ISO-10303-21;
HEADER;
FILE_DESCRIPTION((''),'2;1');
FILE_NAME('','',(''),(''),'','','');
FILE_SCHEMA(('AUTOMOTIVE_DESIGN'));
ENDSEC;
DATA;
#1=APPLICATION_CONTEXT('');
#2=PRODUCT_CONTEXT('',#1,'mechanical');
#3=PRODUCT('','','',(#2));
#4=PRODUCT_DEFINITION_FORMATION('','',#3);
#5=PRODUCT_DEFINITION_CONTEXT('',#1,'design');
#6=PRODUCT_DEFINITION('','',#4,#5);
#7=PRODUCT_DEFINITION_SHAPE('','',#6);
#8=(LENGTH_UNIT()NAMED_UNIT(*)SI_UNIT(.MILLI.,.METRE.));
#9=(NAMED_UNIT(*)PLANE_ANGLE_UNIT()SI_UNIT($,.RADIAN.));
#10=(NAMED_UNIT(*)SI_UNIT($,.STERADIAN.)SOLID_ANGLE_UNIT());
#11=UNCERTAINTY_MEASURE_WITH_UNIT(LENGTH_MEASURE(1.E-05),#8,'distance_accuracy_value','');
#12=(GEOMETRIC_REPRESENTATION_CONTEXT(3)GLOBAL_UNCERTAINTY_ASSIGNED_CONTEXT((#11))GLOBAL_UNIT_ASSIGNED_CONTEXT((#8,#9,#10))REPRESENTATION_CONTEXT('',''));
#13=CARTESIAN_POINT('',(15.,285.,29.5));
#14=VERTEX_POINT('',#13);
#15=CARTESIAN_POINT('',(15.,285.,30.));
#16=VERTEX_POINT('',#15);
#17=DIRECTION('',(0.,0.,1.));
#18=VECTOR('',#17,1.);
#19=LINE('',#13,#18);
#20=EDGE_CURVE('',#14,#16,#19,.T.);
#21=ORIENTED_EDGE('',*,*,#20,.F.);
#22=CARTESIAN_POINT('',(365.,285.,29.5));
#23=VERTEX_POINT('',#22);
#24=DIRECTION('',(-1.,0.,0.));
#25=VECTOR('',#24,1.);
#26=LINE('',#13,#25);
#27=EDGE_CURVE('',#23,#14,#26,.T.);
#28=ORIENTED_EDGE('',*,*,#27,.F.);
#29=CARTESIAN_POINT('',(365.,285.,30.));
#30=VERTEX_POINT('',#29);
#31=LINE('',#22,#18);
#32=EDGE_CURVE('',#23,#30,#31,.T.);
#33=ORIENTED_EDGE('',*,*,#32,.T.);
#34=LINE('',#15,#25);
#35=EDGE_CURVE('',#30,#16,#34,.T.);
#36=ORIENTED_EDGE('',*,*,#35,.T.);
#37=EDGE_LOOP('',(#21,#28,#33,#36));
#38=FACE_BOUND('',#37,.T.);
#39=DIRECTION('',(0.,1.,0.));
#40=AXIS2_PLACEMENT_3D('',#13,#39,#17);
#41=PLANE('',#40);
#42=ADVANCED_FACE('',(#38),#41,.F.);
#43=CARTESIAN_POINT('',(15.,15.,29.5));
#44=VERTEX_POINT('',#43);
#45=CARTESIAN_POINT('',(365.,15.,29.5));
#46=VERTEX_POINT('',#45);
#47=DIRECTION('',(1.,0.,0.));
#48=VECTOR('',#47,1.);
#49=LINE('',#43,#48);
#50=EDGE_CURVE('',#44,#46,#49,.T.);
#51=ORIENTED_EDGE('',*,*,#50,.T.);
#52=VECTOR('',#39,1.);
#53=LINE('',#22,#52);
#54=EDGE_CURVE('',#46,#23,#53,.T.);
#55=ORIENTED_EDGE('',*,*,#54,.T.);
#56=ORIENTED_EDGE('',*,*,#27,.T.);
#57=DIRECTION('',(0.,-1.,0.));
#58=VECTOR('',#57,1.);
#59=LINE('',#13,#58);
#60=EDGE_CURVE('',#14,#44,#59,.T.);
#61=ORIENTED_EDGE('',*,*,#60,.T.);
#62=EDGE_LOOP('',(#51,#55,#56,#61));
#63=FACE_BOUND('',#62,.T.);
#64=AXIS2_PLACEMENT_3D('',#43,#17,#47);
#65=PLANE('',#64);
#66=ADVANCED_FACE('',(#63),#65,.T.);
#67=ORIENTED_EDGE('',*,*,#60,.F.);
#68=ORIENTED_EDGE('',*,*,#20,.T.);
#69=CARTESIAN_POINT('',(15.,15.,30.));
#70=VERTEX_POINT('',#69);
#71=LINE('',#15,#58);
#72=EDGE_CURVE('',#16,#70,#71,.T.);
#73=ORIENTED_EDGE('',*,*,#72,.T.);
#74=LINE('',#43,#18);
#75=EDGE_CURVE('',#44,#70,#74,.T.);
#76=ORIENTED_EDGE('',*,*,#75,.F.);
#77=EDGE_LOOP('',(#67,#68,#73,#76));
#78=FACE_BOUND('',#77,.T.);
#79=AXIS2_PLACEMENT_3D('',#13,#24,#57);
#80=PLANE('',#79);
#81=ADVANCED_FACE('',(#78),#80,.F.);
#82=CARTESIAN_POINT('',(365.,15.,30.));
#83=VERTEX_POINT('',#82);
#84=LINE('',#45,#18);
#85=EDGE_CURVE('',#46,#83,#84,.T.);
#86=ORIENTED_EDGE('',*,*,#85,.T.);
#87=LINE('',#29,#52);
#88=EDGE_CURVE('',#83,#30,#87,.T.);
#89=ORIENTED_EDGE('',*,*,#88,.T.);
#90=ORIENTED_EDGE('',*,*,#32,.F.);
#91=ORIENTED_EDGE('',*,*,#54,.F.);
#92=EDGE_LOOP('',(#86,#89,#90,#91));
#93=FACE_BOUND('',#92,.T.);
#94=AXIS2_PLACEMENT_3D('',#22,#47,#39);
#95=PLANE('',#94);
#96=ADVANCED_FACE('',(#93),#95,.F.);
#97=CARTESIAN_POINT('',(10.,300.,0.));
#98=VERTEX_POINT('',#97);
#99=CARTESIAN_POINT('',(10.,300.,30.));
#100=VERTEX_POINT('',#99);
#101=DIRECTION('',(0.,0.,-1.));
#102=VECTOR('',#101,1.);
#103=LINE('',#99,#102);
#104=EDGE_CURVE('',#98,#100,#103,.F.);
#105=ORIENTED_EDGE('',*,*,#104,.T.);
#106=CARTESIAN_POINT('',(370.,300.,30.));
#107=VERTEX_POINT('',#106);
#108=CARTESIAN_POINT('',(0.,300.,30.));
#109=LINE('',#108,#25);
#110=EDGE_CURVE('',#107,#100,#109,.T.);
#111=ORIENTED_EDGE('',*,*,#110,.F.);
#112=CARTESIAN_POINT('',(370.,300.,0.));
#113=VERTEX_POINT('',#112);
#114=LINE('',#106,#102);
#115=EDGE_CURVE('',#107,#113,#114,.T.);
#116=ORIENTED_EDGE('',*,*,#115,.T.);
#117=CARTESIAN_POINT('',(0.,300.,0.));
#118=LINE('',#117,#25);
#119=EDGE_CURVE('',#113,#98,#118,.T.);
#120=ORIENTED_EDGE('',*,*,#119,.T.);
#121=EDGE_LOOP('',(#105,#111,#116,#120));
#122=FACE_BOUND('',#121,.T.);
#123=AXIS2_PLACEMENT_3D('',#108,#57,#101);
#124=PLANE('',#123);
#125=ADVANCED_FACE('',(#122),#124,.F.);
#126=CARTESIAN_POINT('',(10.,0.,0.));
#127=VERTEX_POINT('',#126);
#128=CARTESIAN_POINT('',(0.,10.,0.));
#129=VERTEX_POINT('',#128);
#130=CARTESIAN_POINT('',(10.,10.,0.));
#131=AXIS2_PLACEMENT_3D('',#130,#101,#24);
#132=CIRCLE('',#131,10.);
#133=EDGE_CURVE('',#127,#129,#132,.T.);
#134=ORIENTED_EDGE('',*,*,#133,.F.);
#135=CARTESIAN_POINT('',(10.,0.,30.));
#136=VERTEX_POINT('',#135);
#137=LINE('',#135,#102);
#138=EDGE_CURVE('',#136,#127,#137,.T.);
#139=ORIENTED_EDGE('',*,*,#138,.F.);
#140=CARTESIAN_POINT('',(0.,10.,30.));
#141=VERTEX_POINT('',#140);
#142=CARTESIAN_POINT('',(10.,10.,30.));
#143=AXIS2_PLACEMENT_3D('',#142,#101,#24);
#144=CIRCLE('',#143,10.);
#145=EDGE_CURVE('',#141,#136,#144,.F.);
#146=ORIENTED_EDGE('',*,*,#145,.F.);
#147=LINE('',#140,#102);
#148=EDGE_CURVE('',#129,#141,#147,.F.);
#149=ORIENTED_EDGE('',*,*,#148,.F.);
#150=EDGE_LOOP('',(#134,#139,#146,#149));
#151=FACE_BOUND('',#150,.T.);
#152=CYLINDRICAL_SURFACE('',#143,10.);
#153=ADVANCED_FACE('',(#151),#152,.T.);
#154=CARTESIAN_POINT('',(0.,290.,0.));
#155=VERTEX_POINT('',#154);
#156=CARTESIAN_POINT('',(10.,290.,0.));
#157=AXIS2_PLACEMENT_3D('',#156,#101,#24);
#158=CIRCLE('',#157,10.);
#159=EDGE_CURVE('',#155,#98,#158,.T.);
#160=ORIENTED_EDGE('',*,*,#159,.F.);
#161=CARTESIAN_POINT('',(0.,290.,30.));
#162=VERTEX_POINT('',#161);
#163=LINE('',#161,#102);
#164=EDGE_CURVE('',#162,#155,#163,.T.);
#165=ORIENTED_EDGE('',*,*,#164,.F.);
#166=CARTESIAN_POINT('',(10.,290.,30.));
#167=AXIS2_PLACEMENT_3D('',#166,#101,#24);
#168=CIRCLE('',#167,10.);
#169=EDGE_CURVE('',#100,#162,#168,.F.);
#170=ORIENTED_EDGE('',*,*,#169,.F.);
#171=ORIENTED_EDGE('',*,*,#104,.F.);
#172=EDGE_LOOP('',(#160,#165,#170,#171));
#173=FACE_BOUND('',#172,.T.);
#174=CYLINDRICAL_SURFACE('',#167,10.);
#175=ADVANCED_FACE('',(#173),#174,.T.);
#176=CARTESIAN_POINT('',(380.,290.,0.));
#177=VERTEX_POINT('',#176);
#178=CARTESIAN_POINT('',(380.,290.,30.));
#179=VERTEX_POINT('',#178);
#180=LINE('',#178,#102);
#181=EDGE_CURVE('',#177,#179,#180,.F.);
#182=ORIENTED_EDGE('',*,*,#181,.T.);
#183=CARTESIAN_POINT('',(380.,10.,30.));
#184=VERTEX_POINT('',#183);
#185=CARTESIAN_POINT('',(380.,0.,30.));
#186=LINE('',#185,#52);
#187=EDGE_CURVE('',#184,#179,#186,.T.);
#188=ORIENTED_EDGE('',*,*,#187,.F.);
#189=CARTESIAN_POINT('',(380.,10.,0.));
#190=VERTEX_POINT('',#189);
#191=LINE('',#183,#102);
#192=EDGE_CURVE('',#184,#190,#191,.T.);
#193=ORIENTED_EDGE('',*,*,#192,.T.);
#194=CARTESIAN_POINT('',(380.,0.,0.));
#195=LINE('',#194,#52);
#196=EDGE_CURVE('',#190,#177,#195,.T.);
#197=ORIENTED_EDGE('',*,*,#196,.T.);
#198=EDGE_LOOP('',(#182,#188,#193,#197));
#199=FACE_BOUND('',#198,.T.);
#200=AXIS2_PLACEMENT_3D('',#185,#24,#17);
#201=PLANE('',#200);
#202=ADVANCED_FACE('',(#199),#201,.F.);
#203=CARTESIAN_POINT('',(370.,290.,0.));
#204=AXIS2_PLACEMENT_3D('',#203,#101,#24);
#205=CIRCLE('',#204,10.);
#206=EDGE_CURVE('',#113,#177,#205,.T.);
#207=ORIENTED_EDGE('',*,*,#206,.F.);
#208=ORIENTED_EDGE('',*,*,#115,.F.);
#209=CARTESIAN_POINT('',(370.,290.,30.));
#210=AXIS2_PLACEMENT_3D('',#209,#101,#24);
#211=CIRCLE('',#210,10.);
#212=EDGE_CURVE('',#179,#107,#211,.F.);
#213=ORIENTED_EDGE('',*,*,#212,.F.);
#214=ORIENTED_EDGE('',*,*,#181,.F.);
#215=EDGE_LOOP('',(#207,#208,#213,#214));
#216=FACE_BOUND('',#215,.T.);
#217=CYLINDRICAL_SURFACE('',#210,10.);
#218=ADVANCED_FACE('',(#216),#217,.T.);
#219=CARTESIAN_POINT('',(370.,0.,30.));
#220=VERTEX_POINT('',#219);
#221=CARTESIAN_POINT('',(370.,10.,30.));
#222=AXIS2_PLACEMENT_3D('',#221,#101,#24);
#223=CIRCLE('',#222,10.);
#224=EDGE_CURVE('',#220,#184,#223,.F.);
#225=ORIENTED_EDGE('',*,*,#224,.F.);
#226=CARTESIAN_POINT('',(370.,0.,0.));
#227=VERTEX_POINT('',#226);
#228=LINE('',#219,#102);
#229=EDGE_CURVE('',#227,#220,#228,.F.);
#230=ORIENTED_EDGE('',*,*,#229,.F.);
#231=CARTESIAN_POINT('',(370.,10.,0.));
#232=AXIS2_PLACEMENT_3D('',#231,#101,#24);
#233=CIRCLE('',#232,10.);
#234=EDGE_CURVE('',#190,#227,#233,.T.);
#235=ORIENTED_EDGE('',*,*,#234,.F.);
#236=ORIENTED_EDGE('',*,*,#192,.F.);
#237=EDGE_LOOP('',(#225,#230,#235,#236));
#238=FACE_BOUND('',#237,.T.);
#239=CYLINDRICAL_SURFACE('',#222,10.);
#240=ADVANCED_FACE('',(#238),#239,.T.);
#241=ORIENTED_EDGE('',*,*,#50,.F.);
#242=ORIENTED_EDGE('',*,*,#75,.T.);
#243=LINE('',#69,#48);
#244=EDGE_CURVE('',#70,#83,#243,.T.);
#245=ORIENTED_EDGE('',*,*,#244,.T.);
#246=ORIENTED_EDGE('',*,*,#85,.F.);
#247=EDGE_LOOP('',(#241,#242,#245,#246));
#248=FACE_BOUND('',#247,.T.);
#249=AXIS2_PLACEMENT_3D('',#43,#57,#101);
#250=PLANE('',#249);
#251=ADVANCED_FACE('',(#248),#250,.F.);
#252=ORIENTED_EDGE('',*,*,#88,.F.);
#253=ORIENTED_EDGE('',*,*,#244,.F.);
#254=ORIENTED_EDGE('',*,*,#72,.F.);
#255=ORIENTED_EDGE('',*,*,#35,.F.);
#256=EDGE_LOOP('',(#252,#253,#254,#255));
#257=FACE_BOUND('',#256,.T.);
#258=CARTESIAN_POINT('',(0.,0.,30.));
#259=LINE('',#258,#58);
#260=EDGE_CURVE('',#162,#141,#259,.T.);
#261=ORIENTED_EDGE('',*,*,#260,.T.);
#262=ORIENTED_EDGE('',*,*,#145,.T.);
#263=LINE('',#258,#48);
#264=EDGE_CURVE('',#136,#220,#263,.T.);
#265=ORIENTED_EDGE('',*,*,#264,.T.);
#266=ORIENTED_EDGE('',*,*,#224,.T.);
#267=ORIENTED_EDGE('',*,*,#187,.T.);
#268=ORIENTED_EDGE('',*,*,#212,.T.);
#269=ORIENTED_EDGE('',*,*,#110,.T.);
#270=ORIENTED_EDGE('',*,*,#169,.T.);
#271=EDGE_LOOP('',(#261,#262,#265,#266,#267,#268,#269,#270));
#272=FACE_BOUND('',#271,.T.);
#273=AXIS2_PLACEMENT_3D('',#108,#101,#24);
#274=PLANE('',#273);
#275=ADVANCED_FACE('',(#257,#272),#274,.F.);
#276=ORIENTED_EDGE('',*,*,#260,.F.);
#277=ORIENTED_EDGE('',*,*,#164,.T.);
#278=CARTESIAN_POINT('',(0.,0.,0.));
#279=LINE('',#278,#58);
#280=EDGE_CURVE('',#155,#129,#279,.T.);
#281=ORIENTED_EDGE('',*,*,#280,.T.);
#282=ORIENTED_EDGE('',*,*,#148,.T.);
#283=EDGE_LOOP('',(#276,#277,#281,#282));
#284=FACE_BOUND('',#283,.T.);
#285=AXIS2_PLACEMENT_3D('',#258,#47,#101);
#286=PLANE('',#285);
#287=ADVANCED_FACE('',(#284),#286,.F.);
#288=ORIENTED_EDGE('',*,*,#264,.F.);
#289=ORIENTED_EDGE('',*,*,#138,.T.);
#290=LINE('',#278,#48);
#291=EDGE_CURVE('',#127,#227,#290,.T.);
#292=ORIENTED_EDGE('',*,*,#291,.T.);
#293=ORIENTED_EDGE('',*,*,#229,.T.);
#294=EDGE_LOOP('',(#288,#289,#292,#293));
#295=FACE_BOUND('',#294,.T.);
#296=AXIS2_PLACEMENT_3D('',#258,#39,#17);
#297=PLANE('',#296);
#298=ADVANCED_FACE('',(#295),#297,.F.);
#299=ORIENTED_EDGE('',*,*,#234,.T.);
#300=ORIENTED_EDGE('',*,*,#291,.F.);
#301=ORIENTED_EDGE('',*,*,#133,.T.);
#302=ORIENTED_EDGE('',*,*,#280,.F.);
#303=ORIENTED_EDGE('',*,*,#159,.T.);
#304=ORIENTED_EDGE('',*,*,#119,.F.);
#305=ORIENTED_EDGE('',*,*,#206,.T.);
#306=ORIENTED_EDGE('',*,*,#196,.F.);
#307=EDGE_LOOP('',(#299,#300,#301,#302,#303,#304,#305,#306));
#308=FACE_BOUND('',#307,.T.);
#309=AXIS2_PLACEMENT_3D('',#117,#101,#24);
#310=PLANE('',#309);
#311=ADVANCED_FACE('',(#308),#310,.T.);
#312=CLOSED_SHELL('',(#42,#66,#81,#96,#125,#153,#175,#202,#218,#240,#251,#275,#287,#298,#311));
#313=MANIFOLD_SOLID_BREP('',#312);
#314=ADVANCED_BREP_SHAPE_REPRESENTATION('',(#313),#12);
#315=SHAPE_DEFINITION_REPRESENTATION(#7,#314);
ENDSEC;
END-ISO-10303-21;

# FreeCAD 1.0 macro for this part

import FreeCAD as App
import Part
import Sketcher


def edges_at(feature, points):
    """Names of the edges that pass closest to the given points."""
    edges = feature.Shape.Edges
    near = lambda p: min(range(len(edges)), key=lambda i: edges[i].distToShape(Part.Vertex(*p))[0])
    return sorted({f"Edge{near(p) + 1}" for p in points})

doc = App.newDocument("Part")
body = doc.addObject("PartDesign::Body", "Body")

# Sketch on XY plane
sketch1 = doc.addObject("Sketcher::SketchObject", "Sketch")
body.addObject(sketch1)
sketch1.AttachmentSupport = (doc.XY_Plane, [""])
sketch1.MapMode = "FlatFace"
sketch1.addGeometry(Part.LineSegment(App.Vector(0, 300, 0), App.Vector(0, 0, 0)), False)
sketch1.addGeometry(Part.LineSegment(App.Vector(0, 0, 0), App.Vector(380, 0, 0)), False)
sketch1.addGeometry(Part.LineSegment(App.Vector(380, 0, 0), App.Vector(380, 300, 0)), False)
sketch1.addGeometry(Part.LineSegment(App.Vector(380, 300, 0), App.Vector(0, 300, 0)), False)
sketch1.addConstraint(Sketcher.Constraint("Coincident", 0, 2, 1, 1))
sketch1.addConstraint(Sketcher.Constraint("Coincident", 1, 2, 2, 1))
sketch1.addConstraint(Sketcher.Constraint("Coincident", 2, 2, 3, 1))
sketch1.addConstraint(Sketcher.Constraint("Coincident", 3, 2, 0, 1))
sketch1.addConstraint(Sketcher.Constraint("Vertical", 0))
sketch1.addConstraint(Sketcher.Constraint("Horizontal", 1))
sketch1.addConstraint(Sketcher.Constraint("Vertical", 2))
sketch1.addConstraint(Sketcher.Constraint("Horizontal", 3))
sketch1.addConstraint(Sketcher.Constraint("Coincident", 0, 2, -1, 1))
sketch1.addConstraint(Sketcher.Constraint("DistanceX", 1, 1, 1, 2, 380.0))
sketch1.addConstraint(Sketcher.Constraint("DistanceY", 0, 2, 0, 1, 300.0))
pad1 = doc.addObject("PartDesign::Pad", "Pad")
body.addObject(pad1)
pad1.Profile = sketch1
pad1.Length = 30

# Sketch on XY plane
sketch2 = doc.addObject("Sketcher::SketchObject", "Sketch001")
body.addObject(sketch2)
sketch2.AttachmentSupport = (doc.XY_Plane, [""])
sketch2.MapMode = "FlatFace"
sketch2.AttachmentOffset = App.Placement(App.Vector(0, 0, 30), App.Rotation())
sketch2.addGeometry(Part.LineSegment(App.Vector(15, 285, 0), App.Vector(15, 15, 0)), False)
sketch2.addGeometry(Part.LineSegment(App.Vector(15, 15, 0), App.Vector(365, 15, 0)), False)
sketch2.addGeometry(Part.LineSegment(App.Vector(365, 15, 0), App.Vector(365, 285, 0)), False)
sketch2.addGeometry(Part.LineSegment(App.Vector(365, 285, 0), App.Vector(15, 285, 0)), False)
sketch2.addConstraint(Sketcher.Constraint("Coincident", 0, 2, 1, 1))
sketch2.addConstraint(Sketcher.Constraint("Coincident", 1, 2, 2, 1))
sketch2.addConstraint(Sketcher.Constraint("Coincident", 2, 2, 3, 1))
sketch2.addConstraint(Sketcher.Constraint("Coincident", 3, 2, 0, 1))
sketch2.addConstraint(Sketcher.Constraint("Vertical", 0))
sketch2.addConstraint(Sketcher.Constraint("Horizontal", 1))
sketch2.addConstraint(Sketcher.Constraint("Vertical", 2))
sketch2.addConstraint(Sketcher.Constraint("Horizontal", 3))
sketch2.addConstraint(Sketcher.Constraint("DistanceX", 1, 1, 1, 2, 350.0))
sketch2.addConstraint(Sketcher.Constraint("DistanceY", 0, 2, 0, 1, 270.0))
sketch2.addConstraint(Sketcher.Constraint("DistanceX", -1, 1, 0, 2, 15.0))
sketch2.addConstraint(Sketcher.Constraint("DistanceY", -1, 1, 0, 2, 15.0))
pocket1 = doc.addObject("PartDesign::Pocket", "Pocket")
body.addObject(pocket1)
pocket1.Profile = sketch2
pocket1.Length = 0.5
doc.recompute()

fillet = doc.addObject("PartDesign::Fillet", "Fillet")
body.addObject(fillet)
fillet.Base = (pocket1, edges_at(pocket1, [
    (0, 300, 15),
    (380, 300, 15),
    (380, 0, 15),
    (0, 0, 15),
]))
fillet.Radius = 10

doc.recompute()
